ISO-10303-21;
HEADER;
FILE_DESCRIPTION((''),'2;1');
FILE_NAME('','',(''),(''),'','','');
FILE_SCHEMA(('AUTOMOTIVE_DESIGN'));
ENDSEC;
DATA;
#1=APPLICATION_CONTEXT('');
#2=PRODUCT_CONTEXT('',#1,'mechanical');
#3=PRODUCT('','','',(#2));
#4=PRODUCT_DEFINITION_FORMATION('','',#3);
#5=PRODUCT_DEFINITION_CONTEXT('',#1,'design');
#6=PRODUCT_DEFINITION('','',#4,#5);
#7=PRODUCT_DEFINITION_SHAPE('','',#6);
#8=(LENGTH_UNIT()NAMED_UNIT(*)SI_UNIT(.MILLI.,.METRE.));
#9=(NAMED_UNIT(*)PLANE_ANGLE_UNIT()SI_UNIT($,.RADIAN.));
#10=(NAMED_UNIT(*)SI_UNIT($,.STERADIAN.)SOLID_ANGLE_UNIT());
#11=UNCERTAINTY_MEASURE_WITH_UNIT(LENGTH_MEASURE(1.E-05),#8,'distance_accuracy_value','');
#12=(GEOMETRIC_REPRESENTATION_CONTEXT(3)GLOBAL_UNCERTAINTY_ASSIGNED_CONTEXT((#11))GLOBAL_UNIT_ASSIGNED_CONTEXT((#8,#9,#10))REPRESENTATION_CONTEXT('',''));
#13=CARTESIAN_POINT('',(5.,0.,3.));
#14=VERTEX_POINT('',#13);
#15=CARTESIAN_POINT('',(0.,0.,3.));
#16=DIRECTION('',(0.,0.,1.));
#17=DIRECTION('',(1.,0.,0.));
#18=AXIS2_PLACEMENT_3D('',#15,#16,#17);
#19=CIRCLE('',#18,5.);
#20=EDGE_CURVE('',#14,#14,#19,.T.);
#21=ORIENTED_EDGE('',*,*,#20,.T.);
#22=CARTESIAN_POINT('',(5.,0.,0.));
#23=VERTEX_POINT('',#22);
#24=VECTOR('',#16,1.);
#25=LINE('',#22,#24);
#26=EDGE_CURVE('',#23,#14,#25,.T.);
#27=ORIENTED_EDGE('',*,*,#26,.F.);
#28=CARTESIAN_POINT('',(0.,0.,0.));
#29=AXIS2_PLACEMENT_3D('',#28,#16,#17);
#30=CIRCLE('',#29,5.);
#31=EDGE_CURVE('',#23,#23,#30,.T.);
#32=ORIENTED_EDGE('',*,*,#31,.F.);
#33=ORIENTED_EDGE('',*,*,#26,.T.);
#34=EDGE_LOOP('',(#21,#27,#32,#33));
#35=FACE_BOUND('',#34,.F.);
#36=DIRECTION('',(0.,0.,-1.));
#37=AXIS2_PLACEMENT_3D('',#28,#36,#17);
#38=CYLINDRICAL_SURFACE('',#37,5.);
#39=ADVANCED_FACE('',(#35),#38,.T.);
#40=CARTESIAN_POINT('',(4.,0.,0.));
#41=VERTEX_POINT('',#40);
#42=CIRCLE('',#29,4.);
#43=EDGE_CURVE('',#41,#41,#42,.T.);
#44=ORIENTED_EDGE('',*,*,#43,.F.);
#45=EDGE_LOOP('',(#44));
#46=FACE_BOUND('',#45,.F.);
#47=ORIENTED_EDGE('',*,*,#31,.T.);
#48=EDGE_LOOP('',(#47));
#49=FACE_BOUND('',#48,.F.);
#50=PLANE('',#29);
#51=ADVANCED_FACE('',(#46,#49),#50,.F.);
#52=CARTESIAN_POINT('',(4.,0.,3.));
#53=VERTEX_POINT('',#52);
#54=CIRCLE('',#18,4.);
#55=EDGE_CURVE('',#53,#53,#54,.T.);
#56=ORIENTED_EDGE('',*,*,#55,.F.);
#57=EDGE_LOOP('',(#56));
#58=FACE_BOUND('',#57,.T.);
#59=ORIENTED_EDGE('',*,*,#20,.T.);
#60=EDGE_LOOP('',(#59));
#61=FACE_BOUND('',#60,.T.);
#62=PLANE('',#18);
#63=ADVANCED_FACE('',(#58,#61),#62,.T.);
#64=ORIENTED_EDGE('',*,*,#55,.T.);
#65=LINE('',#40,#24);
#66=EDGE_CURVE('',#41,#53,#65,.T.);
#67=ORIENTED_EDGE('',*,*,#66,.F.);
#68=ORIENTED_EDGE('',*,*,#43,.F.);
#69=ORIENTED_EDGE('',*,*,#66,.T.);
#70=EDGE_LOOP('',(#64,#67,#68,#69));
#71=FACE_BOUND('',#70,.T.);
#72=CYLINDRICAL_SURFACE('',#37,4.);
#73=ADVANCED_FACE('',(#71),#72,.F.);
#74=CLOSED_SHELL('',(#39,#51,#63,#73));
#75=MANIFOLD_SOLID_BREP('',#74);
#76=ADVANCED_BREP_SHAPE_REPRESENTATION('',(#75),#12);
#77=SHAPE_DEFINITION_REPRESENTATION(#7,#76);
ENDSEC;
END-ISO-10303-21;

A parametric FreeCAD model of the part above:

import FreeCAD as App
import Part
import Sketcher

doc = App.newDocument("Part")
body = doc.addObject("PartDesign::Body", "Body")

# Sketch on XY plane
sketch1 = doc.addObject("Sketcher::SketchObject", "Sketch")
body.addObject(sketch1)
sketch1.AttachmentSupport = (doc.XY_Plane, [""])
sketch1.MapMode = "FlatFace"
sketch1.addGeometry(Part.Circle(App.Vector(0, 0, 0), App.Vector(0, 0, 1), 5), False)
sketch1.addGeometry(Part.Circle(App.Vector(0, 0, 0), App.Vector(0, 0, 1), 4), False)
sketch1.addConstraint(Sketcher.Constraint("Coincident", 0, 3, -1, 1))
sketch1.addConstraint(Sketcher.Constraint("Coincident", 1, 3, -1, 1))
sketch1.addConstraint(Sketcher.Constraint("Diameter", 0, 10.0))
sketch1.addConstraint(Sketcher.Constraint("Diameter", 1, 8.0))
pad1 = doc.addObject("PartDesign::Pad", "Pad")
body.addObject(pad1)
pad1.Profile = sketch1
pad1.Length = 3

doc.recompute()
